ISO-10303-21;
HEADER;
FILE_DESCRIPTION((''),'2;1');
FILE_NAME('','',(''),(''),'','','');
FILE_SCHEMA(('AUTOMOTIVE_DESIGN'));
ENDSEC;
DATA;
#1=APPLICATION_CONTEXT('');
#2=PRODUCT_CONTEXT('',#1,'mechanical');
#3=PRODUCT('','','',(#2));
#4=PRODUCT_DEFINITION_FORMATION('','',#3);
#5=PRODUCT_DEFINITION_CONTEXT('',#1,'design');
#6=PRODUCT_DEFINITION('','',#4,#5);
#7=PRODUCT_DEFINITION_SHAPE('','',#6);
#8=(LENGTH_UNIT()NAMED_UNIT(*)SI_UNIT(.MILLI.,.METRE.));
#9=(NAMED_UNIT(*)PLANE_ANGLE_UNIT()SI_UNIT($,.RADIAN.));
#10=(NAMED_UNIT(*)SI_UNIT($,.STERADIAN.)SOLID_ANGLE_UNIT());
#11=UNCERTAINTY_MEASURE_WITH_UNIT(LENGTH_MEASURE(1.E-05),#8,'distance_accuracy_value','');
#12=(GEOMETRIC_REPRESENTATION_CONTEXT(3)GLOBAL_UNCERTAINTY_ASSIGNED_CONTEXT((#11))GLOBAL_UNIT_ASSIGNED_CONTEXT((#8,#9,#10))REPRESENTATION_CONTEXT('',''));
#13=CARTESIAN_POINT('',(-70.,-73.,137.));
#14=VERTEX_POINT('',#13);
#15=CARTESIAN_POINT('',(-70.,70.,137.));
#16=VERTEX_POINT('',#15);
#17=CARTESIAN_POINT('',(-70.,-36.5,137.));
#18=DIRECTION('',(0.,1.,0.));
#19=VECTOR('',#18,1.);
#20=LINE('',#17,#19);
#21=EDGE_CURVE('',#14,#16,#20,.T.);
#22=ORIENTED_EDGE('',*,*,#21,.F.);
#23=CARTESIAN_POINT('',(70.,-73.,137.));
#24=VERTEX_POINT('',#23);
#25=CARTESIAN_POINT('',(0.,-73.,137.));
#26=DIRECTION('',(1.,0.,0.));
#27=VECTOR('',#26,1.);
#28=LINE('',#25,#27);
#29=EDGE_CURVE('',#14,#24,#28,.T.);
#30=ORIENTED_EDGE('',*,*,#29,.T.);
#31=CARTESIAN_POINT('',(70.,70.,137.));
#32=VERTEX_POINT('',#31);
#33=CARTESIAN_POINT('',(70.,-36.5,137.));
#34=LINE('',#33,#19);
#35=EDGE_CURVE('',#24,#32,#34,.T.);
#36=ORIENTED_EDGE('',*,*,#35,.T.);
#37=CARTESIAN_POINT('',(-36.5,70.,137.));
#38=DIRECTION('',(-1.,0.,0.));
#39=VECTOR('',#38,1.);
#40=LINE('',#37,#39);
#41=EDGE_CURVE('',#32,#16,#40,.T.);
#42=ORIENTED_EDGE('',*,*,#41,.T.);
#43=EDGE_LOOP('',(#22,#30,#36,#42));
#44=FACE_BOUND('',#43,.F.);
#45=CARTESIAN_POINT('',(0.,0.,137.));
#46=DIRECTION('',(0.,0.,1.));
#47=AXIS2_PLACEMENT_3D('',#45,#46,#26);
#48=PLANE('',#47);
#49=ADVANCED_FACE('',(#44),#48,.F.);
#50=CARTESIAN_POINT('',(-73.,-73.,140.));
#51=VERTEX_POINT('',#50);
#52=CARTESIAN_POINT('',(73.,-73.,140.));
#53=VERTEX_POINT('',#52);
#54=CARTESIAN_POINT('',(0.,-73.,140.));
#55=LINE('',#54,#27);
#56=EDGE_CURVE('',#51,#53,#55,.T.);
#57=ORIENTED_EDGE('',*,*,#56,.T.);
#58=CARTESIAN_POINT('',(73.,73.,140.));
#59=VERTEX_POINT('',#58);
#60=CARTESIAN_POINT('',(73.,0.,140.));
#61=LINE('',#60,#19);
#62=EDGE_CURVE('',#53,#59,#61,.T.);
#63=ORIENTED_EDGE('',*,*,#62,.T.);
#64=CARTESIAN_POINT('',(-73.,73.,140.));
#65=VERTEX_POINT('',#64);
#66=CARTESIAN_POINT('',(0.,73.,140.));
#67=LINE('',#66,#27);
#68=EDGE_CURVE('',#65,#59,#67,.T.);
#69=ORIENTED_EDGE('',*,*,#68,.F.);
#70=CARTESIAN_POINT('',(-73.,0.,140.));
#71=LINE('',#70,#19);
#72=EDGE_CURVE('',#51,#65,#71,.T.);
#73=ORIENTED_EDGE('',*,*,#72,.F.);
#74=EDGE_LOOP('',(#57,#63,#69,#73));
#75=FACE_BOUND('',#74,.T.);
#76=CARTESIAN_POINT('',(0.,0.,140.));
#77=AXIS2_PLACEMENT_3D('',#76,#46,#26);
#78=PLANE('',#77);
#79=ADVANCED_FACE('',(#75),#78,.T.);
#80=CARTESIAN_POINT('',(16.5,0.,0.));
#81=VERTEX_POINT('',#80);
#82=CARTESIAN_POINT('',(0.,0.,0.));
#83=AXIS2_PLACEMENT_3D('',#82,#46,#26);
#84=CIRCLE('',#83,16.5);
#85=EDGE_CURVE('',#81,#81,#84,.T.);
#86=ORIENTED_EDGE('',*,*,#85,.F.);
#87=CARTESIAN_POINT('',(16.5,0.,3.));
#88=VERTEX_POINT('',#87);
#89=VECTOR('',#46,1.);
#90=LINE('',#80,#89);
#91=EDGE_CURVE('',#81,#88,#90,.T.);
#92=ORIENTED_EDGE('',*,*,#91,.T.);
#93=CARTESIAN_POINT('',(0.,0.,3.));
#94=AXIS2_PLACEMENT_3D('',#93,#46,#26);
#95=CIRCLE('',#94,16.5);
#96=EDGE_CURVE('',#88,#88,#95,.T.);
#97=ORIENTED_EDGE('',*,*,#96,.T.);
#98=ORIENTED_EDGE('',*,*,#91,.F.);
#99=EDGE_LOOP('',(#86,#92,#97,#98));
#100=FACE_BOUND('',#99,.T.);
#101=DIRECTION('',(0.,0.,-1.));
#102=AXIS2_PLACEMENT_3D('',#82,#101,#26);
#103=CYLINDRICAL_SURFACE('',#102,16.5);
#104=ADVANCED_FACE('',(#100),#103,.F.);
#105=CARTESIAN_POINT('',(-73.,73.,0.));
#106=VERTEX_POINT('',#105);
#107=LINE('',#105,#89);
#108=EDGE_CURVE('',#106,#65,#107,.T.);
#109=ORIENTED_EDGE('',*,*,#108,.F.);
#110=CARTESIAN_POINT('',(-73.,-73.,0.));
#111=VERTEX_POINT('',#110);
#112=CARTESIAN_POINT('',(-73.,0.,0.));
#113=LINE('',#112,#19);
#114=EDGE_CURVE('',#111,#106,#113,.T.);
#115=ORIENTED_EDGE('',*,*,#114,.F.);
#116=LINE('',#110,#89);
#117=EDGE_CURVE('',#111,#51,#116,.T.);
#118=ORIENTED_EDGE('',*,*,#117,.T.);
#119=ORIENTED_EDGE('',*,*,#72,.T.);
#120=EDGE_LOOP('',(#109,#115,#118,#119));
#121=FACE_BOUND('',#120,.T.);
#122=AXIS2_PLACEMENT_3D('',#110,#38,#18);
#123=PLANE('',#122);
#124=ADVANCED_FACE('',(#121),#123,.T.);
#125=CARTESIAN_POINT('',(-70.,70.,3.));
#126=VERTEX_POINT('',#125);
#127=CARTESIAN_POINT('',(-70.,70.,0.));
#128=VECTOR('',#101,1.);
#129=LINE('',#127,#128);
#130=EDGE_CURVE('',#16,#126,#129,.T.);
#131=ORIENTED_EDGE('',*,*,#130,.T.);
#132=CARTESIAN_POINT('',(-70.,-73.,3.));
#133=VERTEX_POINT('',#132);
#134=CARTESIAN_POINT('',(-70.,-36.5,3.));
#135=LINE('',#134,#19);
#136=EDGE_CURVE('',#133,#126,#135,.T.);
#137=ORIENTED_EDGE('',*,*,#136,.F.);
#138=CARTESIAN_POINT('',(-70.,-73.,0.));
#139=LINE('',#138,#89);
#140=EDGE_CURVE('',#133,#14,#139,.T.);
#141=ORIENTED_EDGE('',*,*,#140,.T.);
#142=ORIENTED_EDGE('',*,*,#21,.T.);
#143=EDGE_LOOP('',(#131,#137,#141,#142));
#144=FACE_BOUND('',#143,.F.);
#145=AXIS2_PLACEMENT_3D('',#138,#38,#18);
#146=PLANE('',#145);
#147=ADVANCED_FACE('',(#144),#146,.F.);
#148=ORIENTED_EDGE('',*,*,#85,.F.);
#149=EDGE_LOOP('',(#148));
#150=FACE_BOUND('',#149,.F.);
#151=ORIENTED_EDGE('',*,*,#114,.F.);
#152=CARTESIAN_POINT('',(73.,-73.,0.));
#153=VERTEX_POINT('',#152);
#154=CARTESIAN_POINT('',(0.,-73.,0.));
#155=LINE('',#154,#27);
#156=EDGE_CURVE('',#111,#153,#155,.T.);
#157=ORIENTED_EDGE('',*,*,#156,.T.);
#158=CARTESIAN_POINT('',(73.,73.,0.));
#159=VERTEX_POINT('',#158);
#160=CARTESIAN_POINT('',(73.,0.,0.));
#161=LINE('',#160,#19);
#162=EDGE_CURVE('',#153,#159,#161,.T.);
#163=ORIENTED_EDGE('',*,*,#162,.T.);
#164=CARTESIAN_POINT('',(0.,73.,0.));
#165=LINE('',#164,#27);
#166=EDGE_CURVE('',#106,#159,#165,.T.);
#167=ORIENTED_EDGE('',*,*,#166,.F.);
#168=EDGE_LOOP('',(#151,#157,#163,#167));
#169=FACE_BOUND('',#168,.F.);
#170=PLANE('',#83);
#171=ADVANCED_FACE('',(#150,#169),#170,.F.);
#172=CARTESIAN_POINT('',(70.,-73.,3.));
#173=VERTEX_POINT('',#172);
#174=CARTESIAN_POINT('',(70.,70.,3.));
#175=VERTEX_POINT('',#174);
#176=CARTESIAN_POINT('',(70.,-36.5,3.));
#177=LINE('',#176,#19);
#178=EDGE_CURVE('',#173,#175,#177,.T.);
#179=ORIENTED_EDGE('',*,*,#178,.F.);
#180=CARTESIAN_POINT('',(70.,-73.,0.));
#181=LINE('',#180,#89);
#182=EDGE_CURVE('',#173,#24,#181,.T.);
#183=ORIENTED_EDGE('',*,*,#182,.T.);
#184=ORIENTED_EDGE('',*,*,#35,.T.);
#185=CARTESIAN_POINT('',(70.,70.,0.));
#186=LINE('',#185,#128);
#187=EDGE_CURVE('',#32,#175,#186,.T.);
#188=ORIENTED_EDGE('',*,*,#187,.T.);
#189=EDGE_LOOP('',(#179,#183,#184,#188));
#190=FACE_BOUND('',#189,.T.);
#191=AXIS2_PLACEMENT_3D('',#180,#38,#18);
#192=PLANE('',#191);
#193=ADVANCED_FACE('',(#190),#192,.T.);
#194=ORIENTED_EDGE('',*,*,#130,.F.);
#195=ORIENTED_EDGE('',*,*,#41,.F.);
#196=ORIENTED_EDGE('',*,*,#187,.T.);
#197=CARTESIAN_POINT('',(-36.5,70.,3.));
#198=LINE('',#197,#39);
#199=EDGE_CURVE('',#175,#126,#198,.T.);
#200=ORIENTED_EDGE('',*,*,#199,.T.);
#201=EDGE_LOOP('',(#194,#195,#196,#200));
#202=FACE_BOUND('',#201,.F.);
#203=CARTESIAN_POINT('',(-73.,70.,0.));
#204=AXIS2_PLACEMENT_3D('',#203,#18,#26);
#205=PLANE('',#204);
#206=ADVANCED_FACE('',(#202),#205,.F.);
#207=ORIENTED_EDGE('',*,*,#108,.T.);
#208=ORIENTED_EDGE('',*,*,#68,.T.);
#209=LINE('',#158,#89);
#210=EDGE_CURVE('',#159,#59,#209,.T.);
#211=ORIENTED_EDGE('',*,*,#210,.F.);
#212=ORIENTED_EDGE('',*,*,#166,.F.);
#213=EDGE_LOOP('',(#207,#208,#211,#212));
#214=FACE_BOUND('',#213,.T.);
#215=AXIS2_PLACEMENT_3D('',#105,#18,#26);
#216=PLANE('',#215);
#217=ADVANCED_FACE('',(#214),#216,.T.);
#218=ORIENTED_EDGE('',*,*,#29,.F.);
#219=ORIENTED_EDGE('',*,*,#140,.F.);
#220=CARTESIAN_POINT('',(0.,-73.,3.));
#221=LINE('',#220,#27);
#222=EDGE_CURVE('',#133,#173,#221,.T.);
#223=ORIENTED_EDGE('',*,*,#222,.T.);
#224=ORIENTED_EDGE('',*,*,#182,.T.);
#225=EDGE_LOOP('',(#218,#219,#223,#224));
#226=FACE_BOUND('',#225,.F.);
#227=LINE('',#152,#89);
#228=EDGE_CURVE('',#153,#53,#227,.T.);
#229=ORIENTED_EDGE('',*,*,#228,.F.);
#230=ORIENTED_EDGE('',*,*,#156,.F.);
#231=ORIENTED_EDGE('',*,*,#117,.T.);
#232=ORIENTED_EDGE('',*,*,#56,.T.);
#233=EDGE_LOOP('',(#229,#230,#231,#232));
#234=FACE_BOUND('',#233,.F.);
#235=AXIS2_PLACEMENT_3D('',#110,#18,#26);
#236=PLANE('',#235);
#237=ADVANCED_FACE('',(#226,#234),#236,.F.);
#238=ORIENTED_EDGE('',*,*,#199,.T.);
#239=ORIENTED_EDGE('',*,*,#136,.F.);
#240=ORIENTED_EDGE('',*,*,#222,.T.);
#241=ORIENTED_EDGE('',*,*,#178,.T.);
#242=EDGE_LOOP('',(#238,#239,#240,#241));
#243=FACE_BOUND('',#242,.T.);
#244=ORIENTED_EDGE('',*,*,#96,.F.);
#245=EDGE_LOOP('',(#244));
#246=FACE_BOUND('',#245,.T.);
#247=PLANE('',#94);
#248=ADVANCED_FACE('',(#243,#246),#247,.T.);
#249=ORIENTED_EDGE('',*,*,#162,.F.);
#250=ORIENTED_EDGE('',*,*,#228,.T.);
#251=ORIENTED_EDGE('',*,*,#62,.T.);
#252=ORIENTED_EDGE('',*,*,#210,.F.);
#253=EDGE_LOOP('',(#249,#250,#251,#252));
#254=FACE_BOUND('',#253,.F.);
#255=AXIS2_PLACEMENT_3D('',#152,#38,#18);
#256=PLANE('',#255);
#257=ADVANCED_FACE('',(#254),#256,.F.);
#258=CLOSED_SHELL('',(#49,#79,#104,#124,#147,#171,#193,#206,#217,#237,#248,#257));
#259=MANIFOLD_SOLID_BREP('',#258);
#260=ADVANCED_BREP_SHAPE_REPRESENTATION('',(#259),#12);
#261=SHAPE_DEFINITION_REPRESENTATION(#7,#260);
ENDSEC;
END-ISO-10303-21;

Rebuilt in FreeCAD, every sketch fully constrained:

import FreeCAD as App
import Part
import Sketcher

V = App.Vector


def faces_at(feature, points):
    """Names of the faces that lie closest to the given points."""
    faces = feature.Shape.Faces
    near = lambda p: min(range(len(faces)), key=lambda i: faces[i].distToShape(Part.Vertex(*p))[0])
    return sorted({f"Face{near(p) + 1}" for p in points})


def add_polygon(sketch, points):
    """Adds a closed chain of lines whose ends are joined by coincident constraints."""
    first, n = sketch.GeometryCount, len(points)
    for a, b in zip(points, points[1:] + points[:1]):
        sketch.addGeometry(Part.LineSegment(App.Vector(*a, 0), App.Vector(*b, 0)), False)
    for i in range(n):
        sketch.addConstraint(Sketcher.Constraint("Coincident", first + i, 2, first + (i + 1) % n, 1))

doc = App.newDocument("Part")
body = doc.addObject("PartDesign::Body", "Body")

sketch1 = body.newObject("Sketcher::SketchObject", "Sketch")
sketch1.AttachmentSupport = (doc.getObject("XY_Plane"), [""])
sketch1.MapMode = "FlatFace"
add_polygon(sketch1, [(-73, 73), (-73, -73), (73, -73), (73, 73)])
sketch1.addConstraint(Sketcher.Constraint("Vertical", 0))
sketch1.addConstraint(Sketcher.Constraint("Horizontal", 1))
sketch1.addConstraint(Sketcher.Constraint("Vertical", 2))
sketch1.addConstraint(Sketcher.Constraint("Horizontal", 3))
sketch1.addConstraint(Sketcher.Constraint("Symmetric", 0, 2, 2, 2, -1, 1))
sketch1.addConstraint(Sketcher.Constraint("Equal", 3, 0))
sketch1.addConstraint(Sketcher.Constraint("DistanceX", 1, 1, 1, 2, 146.0))
pad1 = body.newObject("PartDesign::Pad", "Pad")
pad1.Profile = sketch1
pad1.Length = 140
doc.recompute()

thickness = body.newObject("PartDesign::Thickness", "Thickness")
thickness.Base = (pad1, faces_at(pad1, [(0, -73, 70)]))
thickness.Value = 3
thickness.Reversed = True
thickness.Join = "Arc"

sketch2 = body.newObject("Sketcher::SketchObject", "Sketch001")
sketch2.AttachmentSupport = (doc.getObject("XY_Plane"), [""])
sketch2.MapMode = "FlatFace"
sketch2.addGeometry(Part.Circle(V(0, 0, 0), V(0, 0, 1), 16), False)
sketch2.addConstraint(Sketcher.Constraint("Coincident", 0, 3, -1, 1))
sketch2.addConstraint(Sketcher.Constraint("Diameter", 0, 33.0))
pocket1 = body.newObject("PartDesign::Pocket", "Pocket")
pocket1.Profile = sketch2
pocket1.Length = 3
pocket1.Reversed = True

doc.recompute()
